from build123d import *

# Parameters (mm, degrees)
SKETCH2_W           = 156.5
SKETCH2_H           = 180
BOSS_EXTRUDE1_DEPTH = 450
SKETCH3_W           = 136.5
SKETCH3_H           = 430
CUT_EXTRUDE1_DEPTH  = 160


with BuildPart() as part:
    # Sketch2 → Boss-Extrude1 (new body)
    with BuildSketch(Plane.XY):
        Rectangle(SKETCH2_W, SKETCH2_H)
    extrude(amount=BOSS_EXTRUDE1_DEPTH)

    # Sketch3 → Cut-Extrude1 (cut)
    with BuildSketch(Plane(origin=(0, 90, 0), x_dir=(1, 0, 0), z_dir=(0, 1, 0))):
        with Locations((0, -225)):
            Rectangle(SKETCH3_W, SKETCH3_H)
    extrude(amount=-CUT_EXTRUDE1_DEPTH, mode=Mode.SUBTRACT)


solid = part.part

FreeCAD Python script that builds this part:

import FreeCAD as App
import Part
import Sketcher

V = App.Vector


def add_polygon(sketch, points):
    """Adds a closed chain of lines whose ends are joined by coincident constraints."""
    first, n = sketch.GeometryCount, len(points)
    for a, b in zip(points, points[1:] + points[:1]):
        sketch.addGeometry(Part.LineSegment(App.Vector(*a, 0), App.Vector(*b, 0)), False)
    for i in range(n):
        sketch.addConstraint(Sketcher.Constraint("Coincident", first + i, 2, first + (i + 1) % n, 1))

doc = App.newDocument("Part")
body = doc.addObject("PartDesign::Body", "Body")

# Sketch on XY plane
sketch1 = doc.addObject("Sketcher::SketchObject", "Sketch")
body.addObject(sketch1)
sketch1.AttachmentSupport = (doc.XY_Plane, [""])
sketch1.MapMode = "FlatFace"
add_polygon(sketch1, [(-78, 90), (-78, -90), (78, -90), (78, 90)])  # lines 0-3
sketch1.addConstraint(Sketcher.Constraint("Vertical", 0))
sketch1.addConstraint(Sketcher.Constraint("Horizontal", 1))
sketch1.addConstraint(Sketcher.Constraint("Vertical", 2))
sketch1.addConstraint(Sketcher.Constraint("Horizontal", 3))
sketch1.addConstraint(Sketcher.Constraint("Symmetric", 0, 2, 2, 2, -1, 1))
sketch1.addConstraint(Sketcher.Constraint("DistanceY", 0, 2, 0, 1, 180.0))
sketch1.addConstraint(Sketcher.Constraint("DistanceX", 1, 1, 1, 2, 156.5))
pad1 = doc.addObject("PartDesign::Pad", "Pad")
body.addObject(pad1)
pad1.Profile = sketch1
pad1.Length = 450

# Sketch on XZ plane
sketch2 = doc.addObject("Sketcher::SketchObject", "Sketch001")
body.addObject(sketch2)
sketch2.AttachmentSupport = (doc.XZ_Plane, [""])
sketch2.MapMode = "FlatFace"
sketch2.AttachmentOffset = App.Placement(V(0, 0, -90), App.Rotation())
add_polygon(sketch2, [(-68, 10), (-68, 440), (68, 440), (68, 10)])  # lines 0-3
sketch2.addConstraint(Sketcher.Constraint("Vertical", 0))
sketch2.addConstraint(Sketcher.Constraint("Horizontal", 1))
sketch2.addConstraint(Sketcher.Constraint("Vertical", 2))
sketch2.addConstraint(Sketcher.Constraint("Horizontal", 3))
sketch2.addConstraint(Sketcher.Constraint("DistanceY", 0, 1, 0, 2, 430.0))
sketch2.addConstraint(Sketcher.Constraint("DistanceX", 1, 1, 1, 2, 136.5))
sketch2.addConstraint(Sketcher.Constraint("DistanceY", -1, 1, 0, 2, 440.0))
sketch2.addConstraint(Sketcher.Constraint("DistanceX", 0, 2, -1, 1, 68.25))
pocket1 = doc.addObject("PartDesign::Pocket", "Pocket")
body.addObject(pocket1)
pocket1.Profile = sketch2
pocket1.Length = 160
pocket1.Reversed = True

doc.recompute()
